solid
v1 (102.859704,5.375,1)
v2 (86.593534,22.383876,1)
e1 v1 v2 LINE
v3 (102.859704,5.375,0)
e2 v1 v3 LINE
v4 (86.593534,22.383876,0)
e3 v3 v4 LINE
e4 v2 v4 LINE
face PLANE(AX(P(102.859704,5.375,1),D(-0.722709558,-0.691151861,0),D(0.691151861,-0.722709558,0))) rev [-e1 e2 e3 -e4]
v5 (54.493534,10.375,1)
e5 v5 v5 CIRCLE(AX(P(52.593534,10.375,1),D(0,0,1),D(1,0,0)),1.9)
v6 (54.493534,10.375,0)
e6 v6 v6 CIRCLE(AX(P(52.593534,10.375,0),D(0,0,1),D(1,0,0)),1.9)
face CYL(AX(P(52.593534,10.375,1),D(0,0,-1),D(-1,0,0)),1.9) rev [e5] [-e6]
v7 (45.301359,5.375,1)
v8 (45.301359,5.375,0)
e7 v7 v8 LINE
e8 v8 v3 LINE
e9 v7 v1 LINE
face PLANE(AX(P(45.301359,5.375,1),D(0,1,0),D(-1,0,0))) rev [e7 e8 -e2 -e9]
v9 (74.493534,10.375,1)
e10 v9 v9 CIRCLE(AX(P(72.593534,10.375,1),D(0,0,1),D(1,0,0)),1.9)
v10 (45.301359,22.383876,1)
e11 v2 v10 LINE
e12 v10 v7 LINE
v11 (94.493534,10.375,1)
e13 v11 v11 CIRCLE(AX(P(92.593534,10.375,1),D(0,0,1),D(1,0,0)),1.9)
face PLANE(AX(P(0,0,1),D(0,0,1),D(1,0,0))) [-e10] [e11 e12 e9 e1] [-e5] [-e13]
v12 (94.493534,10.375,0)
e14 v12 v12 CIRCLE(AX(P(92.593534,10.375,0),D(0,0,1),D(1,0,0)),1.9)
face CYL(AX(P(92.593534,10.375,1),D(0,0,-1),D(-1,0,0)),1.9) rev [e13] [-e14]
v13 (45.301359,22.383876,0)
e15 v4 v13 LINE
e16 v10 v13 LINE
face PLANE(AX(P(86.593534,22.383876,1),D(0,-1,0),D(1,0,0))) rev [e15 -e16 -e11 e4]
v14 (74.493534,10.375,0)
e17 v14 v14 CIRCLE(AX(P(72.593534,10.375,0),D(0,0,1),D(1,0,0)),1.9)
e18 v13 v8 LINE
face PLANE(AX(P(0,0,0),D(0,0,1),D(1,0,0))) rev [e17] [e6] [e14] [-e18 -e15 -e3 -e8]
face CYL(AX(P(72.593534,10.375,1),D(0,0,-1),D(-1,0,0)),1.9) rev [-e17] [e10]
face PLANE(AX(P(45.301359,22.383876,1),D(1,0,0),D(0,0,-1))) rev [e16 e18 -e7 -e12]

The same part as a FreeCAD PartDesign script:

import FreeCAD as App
import Part
import Sketcher
from FreeCAD import Vector
Q = App.Units.Quantity

doc = App.newDocument("Part")
body = doc.addObject("PartDesign::Body", "Body")

# Sketch on XY plane
sketch1 = body.newObject("Sketcher::SketchObject", "Sketch")
sketch1.AttachmentSupport = (doc.getObject("XY_Plane"), [""])
sketch1.MapMode = "FlatFace"
sketch1.addGeometry(Part.LineSegment(Vector(45.3, 5.4, 0), Vector(102.9, 5.4, 0)), False)
sketch1.addGeometry(Part.LineSegment(Vector(102.9, 5.4, 0), Vector(86.6, 22.4, 0)), False)
sketch1.addGeometry(Part.LineSegment(Vector(86.6, 22.4, 0), Vector(45.3, 22.4, 0)), False)
sketch1.addGeometry(Part.LineSegment(Vector(45.3, 22.4, 0), Vector(45.3, 5.4, 0)), False)
sketch1.addGeometry(Part.Circle(Vector(52.6, 10.4, 0), Vector(0, 0, 1), 1.9), False)
sketch1.addGeometry(Part.Circle(Vector(72.6, 10.4, 0), Vector(0, 0, 1), 1.9), False)
sketch1.addGeometry(Part.Circle(Vector(92.6, 10.4, 0), Vector(0, 0, 1), 1.9), False)
sketch1.addConstraint(Sketcher.Constraint("Coincident", 0, 2, 1, 1))
sketch1.addConstraint(Sketcher.Constraint("Coincident", 1, 2, 2, 1))
sketch1.addConstraint(Sketcher.Constraint("Coincident", 2, 2, 3, 1))
sketch1.addConstraint(Sketcher.Constraint("Coincident", 3, 2, 0, 1))
sketch1.addConstraint(Sketcher.Constraint("Horizontal", 0))
sketch1.addConstraint(Sketcher.Constraint("Horizontal", 2))
sketch1.addConstraint(Sketcher.Constraint("Vertical", 3))
sketch1.addConstraint(Sketcher.Constraint("Equal", 4, 5))
sketch1.addConstraint(Sketcher.Constraint("Equal", 5, 6))
sketch1.addConstraint(Sketcher.Constraint("Horizontal", 4, 3, 5, 3))
sketch1.addConstraint(Sketcher.Constraint("Horizontal", 5, 3, 6, 3))
sketch1.addConstraint(Sketcher.Constraint("Diameter", 4, Q("3.8 mm")))
sketch1.addConstraint(Sketcher.Constraint("DistanceX", 4, 3, 5, 3, Q("20 mm")))
sketch1.addConstraint(Sketcher.Constraint("DistanceX", 5, 3, 6, 3, Q("20 mm")))
sketch1.addConstraint(Sketcher.Constraint("DistanceY", 0, 2, 6, 3, Q("5 mm")))
sketch1.addConstraint(Sketcher.Constraint("DistanceX", 1, 2, 6, 3, Q("6 mm")))
sketch1.addConstraint(Sketcher.Constraint("DistanceY", -1, 1, 4, 3, Q("10.375 mm")))
sketch1.addConstraint(Sketcher.Constraint("Distance", 1, Q("23.534871 mm")))
sketch1.addConstraint(Sketcher.Constraint("DistanceX", 0, 1, 0, 2, Q("57.558345 mm")))
sketch1.addConstraint(Sketcher.Constraint("DistanceX", 2, 2, 2, 1, Q("41.292175 mm")))
sketch1.addConstraint(Sketcher.Constraint("DistanceX", -1, 1, 2, 2, Q("45.301359 mm")))
pad1 = body.newObject("PartDesign::Pad", "Pad")
pad1.Profile = sketch1
pad1.Length = 1

doc.recompute()
